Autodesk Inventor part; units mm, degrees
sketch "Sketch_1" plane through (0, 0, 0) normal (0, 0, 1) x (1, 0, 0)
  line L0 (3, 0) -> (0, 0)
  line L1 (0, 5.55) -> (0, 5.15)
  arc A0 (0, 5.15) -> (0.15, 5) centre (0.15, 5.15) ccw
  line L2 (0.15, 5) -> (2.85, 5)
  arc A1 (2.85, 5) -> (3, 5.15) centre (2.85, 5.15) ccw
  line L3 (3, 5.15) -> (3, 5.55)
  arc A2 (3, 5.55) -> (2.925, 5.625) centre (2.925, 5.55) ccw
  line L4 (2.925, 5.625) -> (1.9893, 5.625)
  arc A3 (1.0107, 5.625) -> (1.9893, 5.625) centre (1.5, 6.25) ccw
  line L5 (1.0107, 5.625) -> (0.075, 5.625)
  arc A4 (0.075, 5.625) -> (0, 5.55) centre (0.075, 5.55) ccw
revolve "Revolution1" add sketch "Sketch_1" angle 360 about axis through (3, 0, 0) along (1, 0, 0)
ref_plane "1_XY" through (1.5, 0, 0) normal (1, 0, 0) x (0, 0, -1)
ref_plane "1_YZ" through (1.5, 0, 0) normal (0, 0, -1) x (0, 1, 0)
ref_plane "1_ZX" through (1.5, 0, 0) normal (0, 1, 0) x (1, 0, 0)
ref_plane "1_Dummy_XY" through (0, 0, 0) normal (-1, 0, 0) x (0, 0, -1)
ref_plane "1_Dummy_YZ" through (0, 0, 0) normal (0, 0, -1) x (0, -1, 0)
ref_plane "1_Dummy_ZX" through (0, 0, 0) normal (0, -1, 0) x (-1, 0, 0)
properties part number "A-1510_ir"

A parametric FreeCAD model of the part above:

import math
import FreeCAD as App
import Part
import Sketcher

doc = App.newDocument("Part")
body = doc.addObject("PartDesign::Body", "Body")

sketch1 = body.newObject("Sketcher::SketchObject", "Sketch")
sketch1.AttachmentSupport = (doc.getObject("XY_Plane"), [""])
sketch1.MapMode = "FlatFace"
sketch1.addGeometry([
    Part.ArcOfCircle(Part.Circle(App.Vector(0.07, 5.55, 0), App.Vector(0, 0, 1), 0.08), math.radians(90), math.radians(180)),
    Part.LineSegment(App.Vector(0, 5.55, 0), App.Vector(0, 5.15, 0)),
    Part.ArcOfCircle(Part.Circle(App.Vector(0.15, 5.15, 0), App.Vector(0, 0, 1), 0.15), math.radians(180), math.radians(270)),
    Part.LineSegment(App.Vector(0.15, 5, 0), App.Vector(2.85, 5, 0)),
    Part.ArcOfCircle(Part.Circle(App.Vector(2.85, 5.15, 0), App.Vector(0, 0, 1), 0.15), math.radians(-90), math.radians(0)),
    Part.LineSegment(App.Vector(3, 5.15, 0), App.Vector(3, 5.55, 0)),
    Part.ArcOfCircle(Part.Circle(App.Vector(2.92, 5.55, 0), App.Vector(0, 0, 1), 0.08), math.radians(0), math.radians(90)),
    Part.LineSegment(App.Vector(2.92, 5.62, 0), App.Vector(1.99, 5.62, 0)),
    Part.ArcOfCircle(Part.Circle(App.Vector(1.5, 6.25, 0), App.Vector(0, 0, 1), 0.79), math.radians(-128), math.radians(-52)),
    Part.LineSegment(App.Vector(1.01, 5.62, 0), App.Vector(0.07, 5.62, 0)),
], False)
sketch1.addConstraint([
    Sketcher.Constraint("Tangent", 0, 2, 1, 1),
    Sketcher.Constraint("Tangent", 1, 2, 2, 1),
    Sketcher.Constraint("Tangent", 2, 2, 3, 1),
    Sketcher.Constraint("Tangent", 3, 2, 4, 1),
    Sketcher.Constraint("Tangent", 4, 2, 5, 1),
    Sketcher.Constraint("Tangent", 5, 2, 6, 1),
    Sketcher.Constraint("Tangent", 6, 2, 7, 1),
    Sketcher.Constraint("Coincident", 7, 2, 8, 2),
    Sketcher.Constraint("Coincident", 8, 1, 9, 1),
    Sketcher.Constraint("Tangent", 9, 2, 0, 1),
    Sketcher.Constraint("Vertical", 1),
    Sketcher.Constraint("Horizontal", 3),
    Sketcher.Constraint("Vertical", 5),
    Sketcher.Constraint("Horizontal", 7),
    Sketcher.Constraint("Horizontal", 9),
    Sketcher.Constraint("Equal", 2, 4),
    Sketcher.Constraint("Equal", 0, 6),
    Sketcher.Constraint("PointOnObject", 0, 2, -2),
    Sketcher.Constraint("Horizontal", 0, 3, 6, 3),
    Sketcher.Constraint("Equal", 7, 9),
    Sketcher.Constraint("Radius", 2, 0.15),
    Sketcher.Constraint("DistanceX", 3, 1, 3, 2, 2.7),
    Sketcher.Constraint("DistanceY", 1, 2, 1, 1, 0.4),
    Sketcher.Constraint("DistanceY", -1, 1, 2, 2, 5.0),
    Sketcher.Constraint("Radius", 0, 0.075),
    Sketcher.Constraint("Radius", 8, 0.7938),
    Sketcher.Constraint("DistanceY", 0, 3, 8, 3, 0.7),
])
revolution = body.newObject("PartDesign::Revolution", "Revolution")
revolution.Profile = sketch1
revolution.ReferenceAxis = (sketch1, ["H_Axis"])
revolution.Angle = 360

doc.recompute()
